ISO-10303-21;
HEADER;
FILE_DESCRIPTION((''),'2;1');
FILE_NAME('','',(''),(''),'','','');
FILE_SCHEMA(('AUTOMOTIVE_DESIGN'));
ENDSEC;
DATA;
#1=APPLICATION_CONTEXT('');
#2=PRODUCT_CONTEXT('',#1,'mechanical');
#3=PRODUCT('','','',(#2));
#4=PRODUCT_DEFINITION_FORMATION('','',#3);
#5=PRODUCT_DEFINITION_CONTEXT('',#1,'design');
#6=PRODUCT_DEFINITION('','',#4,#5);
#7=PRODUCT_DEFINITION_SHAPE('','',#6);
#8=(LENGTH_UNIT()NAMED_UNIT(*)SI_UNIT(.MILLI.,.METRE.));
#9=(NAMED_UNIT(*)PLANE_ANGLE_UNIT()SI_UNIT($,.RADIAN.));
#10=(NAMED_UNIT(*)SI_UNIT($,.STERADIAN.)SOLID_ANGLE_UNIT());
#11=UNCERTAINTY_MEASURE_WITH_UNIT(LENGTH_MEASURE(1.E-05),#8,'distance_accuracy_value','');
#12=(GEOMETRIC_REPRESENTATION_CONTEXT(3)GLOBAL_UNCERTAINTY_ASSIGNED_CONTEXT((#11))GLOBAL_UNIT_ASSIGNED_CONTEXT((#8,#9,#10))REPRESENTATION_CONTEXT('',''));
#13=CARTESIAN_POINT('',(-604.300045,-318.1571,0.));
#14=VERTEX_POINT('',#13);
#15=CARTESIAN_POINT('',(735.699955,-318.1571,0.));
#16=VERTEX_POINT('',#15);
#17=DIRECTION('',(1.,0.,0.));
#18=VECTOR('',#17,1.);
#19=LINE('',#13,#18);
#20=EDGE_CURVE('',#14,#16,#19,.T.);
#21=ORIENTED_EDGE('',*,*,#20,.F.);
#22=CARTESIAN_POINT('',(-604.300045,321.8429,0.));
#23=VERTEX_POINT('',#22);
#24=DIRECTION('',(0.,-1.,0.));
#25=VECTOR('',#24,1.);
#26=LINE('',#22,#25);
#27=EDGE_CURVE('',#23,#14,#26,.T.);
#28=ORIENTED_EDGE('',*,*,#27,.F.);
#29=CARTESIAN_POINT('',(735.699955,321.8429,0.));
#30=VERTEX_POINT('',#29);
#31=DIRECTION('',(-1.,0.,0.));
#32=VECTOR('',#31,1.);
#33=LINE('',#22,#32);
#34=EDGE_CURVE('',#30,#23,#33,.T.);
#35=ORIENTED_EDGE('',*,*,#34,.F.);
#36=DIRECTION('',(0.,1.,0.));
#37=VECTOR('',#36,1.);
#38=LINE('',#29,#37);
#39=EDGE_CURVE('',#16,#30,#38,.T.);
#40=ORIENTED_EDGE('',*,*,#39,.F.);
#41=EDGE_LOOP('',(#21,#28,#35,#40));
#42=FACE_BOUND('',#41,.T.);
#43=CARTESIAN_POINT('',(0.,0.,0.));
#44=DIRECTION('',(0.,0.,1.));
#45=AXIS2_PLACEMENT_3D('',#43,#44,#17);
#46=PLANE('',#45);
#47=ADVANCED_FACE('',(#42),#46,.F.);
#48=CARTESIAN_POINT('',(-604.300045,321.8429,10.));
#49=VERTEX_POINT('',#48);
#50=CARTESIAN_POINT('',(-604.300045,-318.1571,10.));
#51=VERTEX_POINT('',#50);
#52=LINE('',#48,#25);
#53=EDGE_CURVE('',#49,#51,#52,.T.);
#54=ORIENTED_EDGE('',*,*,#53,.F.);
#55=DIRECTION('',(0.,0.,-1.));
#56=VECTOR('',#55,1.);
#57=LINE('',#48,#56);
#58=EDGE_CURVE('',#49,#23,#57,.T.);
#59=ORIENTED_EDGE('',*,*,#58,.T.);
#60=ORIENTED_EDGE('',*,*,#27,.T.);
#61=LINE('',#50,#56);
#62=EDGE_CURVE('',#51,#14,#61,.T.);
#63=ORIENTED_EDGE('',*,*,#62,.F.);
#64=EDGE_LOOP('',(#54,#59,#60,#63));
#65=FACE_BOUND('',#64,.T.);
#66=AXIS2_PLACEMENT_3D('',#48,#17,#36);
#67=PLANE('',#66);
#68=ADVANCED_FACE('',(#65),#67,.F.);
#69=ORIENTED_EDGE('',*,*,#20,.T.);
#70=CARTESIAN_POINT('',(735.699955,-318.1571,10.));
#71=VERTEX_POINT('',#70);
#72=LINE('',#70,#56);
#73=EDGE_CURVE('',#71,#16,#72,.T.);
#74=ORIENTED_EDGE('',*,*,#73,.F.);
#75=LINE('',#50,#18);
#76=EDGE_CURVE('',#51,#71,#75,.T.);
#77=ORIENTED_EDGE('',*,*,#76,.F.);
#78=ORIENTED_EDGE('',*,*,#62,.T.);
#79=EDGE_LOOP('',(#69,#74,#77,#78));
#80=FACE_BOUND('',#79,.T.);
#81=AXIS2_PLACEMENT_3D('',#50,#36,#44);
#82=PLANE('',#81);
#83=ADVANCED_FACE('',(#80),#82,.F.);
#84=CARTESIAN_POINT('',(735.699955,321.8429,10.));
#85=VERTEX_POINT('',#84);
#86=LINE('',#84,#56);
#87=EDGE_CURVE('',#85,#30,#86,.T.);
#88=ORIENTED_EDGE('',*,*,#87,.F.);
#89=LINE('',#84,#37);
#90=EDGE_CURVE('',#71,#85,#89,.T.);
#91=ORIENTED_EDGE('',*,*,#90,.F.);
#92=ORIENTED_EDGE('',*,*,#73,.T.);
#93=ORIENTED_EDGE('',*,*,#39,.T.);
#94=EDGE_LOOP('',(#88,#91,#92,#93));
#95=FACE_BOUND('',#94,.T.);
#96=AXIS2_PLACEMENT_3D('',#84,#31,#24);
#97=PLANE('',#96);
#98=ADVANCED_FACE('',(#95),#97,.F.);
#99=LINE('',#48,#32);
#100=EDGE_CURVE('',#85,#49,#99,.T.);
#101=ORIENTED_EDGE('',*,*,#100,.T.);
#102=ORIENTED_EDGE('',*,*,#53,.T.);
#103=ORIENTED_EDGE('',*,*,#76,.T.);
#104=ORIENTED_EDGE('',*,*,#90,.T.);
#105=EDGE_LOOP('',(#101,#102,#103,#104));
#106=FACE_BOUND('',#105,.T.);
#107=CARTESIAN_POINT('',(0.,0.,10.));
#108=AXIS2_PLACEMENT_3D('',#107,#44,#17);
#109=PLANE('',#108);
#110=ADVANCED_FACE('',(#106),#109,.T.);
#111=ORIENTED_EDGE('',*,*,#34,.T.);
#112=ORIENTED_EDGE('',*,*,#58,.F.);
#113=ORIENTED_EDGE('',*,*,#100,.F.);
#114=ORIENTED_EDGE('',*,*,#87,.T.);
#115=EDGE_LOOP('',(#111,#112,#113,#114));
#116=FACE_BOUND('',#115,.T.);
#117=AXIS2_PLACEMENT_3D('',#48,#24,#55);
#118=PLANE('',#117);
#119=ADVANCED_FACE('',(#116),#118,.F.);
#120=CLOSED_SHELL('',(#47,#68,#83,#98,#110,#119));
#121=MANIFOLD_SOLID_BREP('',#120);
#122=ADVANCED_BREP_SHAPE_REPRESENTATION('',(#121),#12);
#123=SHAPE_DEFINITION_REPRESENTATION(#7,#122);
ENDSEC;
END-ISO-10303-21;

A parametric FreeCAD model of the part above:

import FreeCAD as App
import Part
import Sketcher
from FreeCAD import Vector
Q = App.Units.Quantity

doc = App.newDocument("Part")
body = doc.addObject("PartDesign::Body", "Body")

sketch1 = body.newObject("Sketcher::SketchObject", "Sketch")
sketch1.AttachmentSupport = (doc.getObject("XY_Plane"), [""])
sketch1.MapMode = "FlatFace"
sketch1.addGeometry([
    Part.LineSegment(Vector(-604.300045, 321.8429, 0), Vector(-604.300045, -318.1571, 0)),
    Part.LineSegment(Vector(-604.300045, -318.1571, 0), Vector(735.699955, -318.1571, 0)),
    Part.LineSegment(Vector(735.699955, -318.1571, 0), Vector(735.699955, 321.8429, 0)),
    Part.LineSegment(Vector(735.699955, 321.8429, 0), Vector(-604.300045, 321.8429, 0)),
], False)
sketch1.addConstraint([
    Sketcher.Constraint("Coincident", 0, 2, 1, 1),
    Sketcher.Constraint("Coincident", 1, 2, 2, 1),
    Sketcher.Constraint("Coincident", 2, 2, 3, 1),
    Sketcher.Constraint("Coincident", 3, 2, 0, 1),
    Sketcher.Constraint("Vertical", 0),
    Sketcher.Constraint("Horizontal", 1),
    Sketcher.Constraint("Vertical", 2),
    Sketcher.Constraint("Horizontal", 3),
    Sketcher.Constraint("DistanceX", 1, 1, 1, 2, Q("1340 mm")),
    Sketcher.Constraint("DistanceY", 0, 2, 0, 1, Q("640 mm")),
    Sketcher.Constraint("DistanceY", 0, 2, -1, 1, Q("318.1571 mm")),
    Sketcher.Constraint("DistanceX", 0, 2, -1, 1, Q("604.300045 mm")),
])
pad1 = body.newObject("PartDesign::Pad", "Pad")
pad1.Profile = sketch1
pad1.Length = 10

doc.recompute()
